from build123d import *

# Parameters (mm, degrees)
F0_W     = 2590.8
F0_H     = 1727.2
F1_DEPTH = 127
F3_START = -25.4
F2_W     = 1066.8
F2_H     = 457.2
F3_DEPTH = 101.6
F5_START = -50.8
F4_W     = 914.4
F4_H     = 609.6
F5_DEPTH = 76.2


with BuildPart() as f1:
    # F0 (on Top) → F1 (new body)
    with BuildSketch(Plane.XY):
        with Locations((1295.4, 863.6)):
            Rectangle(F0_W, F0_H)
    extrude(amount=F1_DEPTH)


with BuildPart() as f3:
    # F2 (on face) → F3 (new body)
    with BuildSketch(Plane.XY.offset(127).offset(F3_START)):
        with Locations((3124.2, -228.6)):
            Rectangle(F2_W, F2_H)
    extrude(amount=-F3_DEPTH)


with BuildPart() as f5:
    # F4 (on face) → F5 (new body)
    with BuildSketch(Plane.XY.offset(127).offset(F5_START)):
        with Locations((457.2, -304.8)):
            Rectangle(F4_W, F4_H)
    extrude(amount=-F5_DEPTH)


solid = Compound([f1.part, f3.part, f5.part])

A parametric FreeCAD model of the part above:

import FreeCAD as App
import Part
import Sketcher
from FreeCAD import Vector
Q = App.Units.Quantity

doc = App.newDocument("Part")
body = doc.addObject("PartDesign::Body", "Body")

sketch1 = doc.addObject("Sketcher::SketchObject", "Sketch")
body.addObject(sketch1)
sketch1.AttachmentSupport = (doc.XY_Plane, [""])
sketch1.MapMode = "FlatFace"
sketch1.addGeometry(Part.LineSegment(Vector(0, 1727, 0), Vector(0, 0, 0)), False)
sketch1.addGeometry(Part.LineSegment(Vector(0, 0, 0), Vector(2591, 0, 0)), False)
sketch1.addGeometry(Part.LineSegment(Vector(2591, 0, 0), Vector(2591, 1727, 0)), False)
sketch1.addGeometry(Part.LineSegment(Vector(2591, 1727, 0), Vector(0, 1727, 0)), False)
sketch1.addConstraint(Sketcher.Constraint("Coincident", 0, 2, 1, 1))
sketch1.addConstraint(Sketcher.Constraint("Coincident", 1, 2, 2, 1))
sketch1.addConstraint(Sketcher.Constraint("Coincident", 2, 2, 3, 1))
sketch1.addConstraint(Sketcher.Constraint("Coincident", 3, 2, 0, 1))
sketch1.addConstraint(Sketcher.Constraint("Vertical", 0))
sketch1.addConstraint(Sketcher.Constraint("Horizontal", 1))
sketch1.addConstraint(Sketcher.Constraint("Vertical", 2))
sketch1.addConstraint(Sketcher.Constraint("Horizontal", 3))
sketch1.addConstraint(Sketcher.Constraint("Coincident", 0, 2, -1, 1))
sketch1.addConstraint(Sketcher.Constraint("DistanceX", 1, 1, 1, 2, Q("102 in")))
sketch1.addConstraint(Sketcher.Constraint("DistanceY", 0, 2, 0, 1, Q("68 in")))
pad1 = doc.addObject("PartDesign::Pad", "Pad")
body.addObject(pad1)
pad1.Profile = sketch1
pad1.Length = Q("5 in")
body2 = doc.addObject("PartDesign::Body", "Body001")

sketch2 = doc.addObject("Sketcher::SketchObject", "Sketch001")
body2.addObject(sketch2)
sketch2.AttachmentSupport = (doc.getObject("XY_Plane001"), [""])
sketch2.MapMode = "FlatFace"
sketch2.AttachmentOffset = App.Placement(Vector(0, 0, 4 * 25.4), App.Rotation())
sketch2.addGeometry(Part.LineSegment(Vector(2591, 0, 0), Vector(2591, -457, 0)), False)
sketch2.addGeometry(Part.LineSegment(Vector(2591, -457, 0), Vector(3658, -457, 0)), False)
sketch2.addGeometry(Part.LineSegment(Vector(3658, -457, 0), Vector(3658, 0, 0)), False)
sketch2.addGeometry(Part.LineSegment(Vector(3658, 0, 0), Vector(2591, 0, 0)), False)
sketch2.addConstraint(Sketcher.Constraint("Coincident", 0, 2, 1, 1))
sketch2.addConstraint(Sketcher.Constraint("Coincident", 1, 2, 2, 1))
sketch2.addConstraint(Sketcher.Constraint("Coincident", 2, 2, 3, 1))
sketch2.addConstraint(Sketcher.Constraint("Coincident", 3, 2, 0, 1))
sketch2.addConstraint(Sketcher.Constraint("Vertical", 0))
sketch2.addConstraint(Sketcher.Constraint("Horizontal", 1))
sketch2.addConstraint(Sketcher.Constraint("Vertical", 2))
sketch2.addConstraint(Sketcher.Constraint("Horizontal", 3))
sketch2.addConstraint(Sketcher.Constraint("PointOnObject", 2, 2, -1))
sketch2.addConstraint(Sketcher.Constraint("DistanceX", 1, 1, 1, 2, Q("42 in")))
sketch2.addConstraint(Sketcher.Constraint("DistanceY", 0, 2, 0, 1, Q("18 in")))
sketch2.addConstraint(Sketcher.Constraint("DistanceX", -1, 1, 0, 2, Q("102 in")))
pad2 = doc.addObject("PartDesign::Pad", "Pad001")
body2.addObject(pad2)
pad2.Profile = sketch2
pad2.Length = Q("4 in")
pad2.Reversed = True
body3 = doc.addObject("PartDesign::Body", "Body002")

sketch3 = doc.addObject("Sketcher::SketchObject", "Sketch002")
body3.addObject(sketch3)
sketch3.AttachmentSupport = (doc.getObject("XY_Plane002"), [""])
sketch3.MapMode = "FlatFace"
sketch3.AttachmentOffset = App.Placement(Vector(0, 0, 3 * 25.4), App.Rotation())
sketch3.addGeometry(Part.LineSegment(Vector(0, 0, 0), Vector(0, -610, 0)), False)
sketch3.addGeometry(Part.LineSegment(Vector(0, -610, 0), Vector(914, -610, 0)), False)
sketch3.addGeometry(Part.LineSegment(Vector(914, -610, 0), Vector(914, 0, 0)), False)
sketch3.addGeometry(Part.LineSegment(Vector(914, 0, 0), Vector(0, 0, 0)), False)
sketch3.addConstraint(Sketcher.Constraint("Coincident", 0, 2, 1, 1))
sketch3.addConstraint(Sketcher.Constraint("Coincident", 1, 2, 2, 1))
sketch3.addConstraint(Sketcher.Constraint("Coincident", 2, 2, 3, 1))
sketch3.addConstraint(Sketcher.Constraint("Coincident", 3, 2, 0, 1))
sketch3.addConstraint(Sketcher.Constraint("Vertical", 0))
sketch3.addConstraint(Sketcher.Constraint("Horizontal", 1))
sketch3.addConstraint(Sketcher.Constraint("Vertical", 2))
sketch3.addConstraint(Sketcher.Constraint("Horizontal", 3))
sketch3.addConstraint(Sketcher.Constraint("Coincident", 3, 2, -1, 1))
sketch3.addConstraint(Sketcher.Constraint("DistanceX", 1, 1, 1, 2, Q("36 in")))
sketch3.addConstraint(Sketcher.Constraint("DistanceY", 0, 2, 0, 1, Q("24 in")))
pad3 = doc.addObject("PartDesign::Pad", "Pad002")
body3.addObject(pad3)
pad3.Profile = sketch3
pad3.Length = Q("3 in")
pad3.Reversed = True

doc.recompute()
